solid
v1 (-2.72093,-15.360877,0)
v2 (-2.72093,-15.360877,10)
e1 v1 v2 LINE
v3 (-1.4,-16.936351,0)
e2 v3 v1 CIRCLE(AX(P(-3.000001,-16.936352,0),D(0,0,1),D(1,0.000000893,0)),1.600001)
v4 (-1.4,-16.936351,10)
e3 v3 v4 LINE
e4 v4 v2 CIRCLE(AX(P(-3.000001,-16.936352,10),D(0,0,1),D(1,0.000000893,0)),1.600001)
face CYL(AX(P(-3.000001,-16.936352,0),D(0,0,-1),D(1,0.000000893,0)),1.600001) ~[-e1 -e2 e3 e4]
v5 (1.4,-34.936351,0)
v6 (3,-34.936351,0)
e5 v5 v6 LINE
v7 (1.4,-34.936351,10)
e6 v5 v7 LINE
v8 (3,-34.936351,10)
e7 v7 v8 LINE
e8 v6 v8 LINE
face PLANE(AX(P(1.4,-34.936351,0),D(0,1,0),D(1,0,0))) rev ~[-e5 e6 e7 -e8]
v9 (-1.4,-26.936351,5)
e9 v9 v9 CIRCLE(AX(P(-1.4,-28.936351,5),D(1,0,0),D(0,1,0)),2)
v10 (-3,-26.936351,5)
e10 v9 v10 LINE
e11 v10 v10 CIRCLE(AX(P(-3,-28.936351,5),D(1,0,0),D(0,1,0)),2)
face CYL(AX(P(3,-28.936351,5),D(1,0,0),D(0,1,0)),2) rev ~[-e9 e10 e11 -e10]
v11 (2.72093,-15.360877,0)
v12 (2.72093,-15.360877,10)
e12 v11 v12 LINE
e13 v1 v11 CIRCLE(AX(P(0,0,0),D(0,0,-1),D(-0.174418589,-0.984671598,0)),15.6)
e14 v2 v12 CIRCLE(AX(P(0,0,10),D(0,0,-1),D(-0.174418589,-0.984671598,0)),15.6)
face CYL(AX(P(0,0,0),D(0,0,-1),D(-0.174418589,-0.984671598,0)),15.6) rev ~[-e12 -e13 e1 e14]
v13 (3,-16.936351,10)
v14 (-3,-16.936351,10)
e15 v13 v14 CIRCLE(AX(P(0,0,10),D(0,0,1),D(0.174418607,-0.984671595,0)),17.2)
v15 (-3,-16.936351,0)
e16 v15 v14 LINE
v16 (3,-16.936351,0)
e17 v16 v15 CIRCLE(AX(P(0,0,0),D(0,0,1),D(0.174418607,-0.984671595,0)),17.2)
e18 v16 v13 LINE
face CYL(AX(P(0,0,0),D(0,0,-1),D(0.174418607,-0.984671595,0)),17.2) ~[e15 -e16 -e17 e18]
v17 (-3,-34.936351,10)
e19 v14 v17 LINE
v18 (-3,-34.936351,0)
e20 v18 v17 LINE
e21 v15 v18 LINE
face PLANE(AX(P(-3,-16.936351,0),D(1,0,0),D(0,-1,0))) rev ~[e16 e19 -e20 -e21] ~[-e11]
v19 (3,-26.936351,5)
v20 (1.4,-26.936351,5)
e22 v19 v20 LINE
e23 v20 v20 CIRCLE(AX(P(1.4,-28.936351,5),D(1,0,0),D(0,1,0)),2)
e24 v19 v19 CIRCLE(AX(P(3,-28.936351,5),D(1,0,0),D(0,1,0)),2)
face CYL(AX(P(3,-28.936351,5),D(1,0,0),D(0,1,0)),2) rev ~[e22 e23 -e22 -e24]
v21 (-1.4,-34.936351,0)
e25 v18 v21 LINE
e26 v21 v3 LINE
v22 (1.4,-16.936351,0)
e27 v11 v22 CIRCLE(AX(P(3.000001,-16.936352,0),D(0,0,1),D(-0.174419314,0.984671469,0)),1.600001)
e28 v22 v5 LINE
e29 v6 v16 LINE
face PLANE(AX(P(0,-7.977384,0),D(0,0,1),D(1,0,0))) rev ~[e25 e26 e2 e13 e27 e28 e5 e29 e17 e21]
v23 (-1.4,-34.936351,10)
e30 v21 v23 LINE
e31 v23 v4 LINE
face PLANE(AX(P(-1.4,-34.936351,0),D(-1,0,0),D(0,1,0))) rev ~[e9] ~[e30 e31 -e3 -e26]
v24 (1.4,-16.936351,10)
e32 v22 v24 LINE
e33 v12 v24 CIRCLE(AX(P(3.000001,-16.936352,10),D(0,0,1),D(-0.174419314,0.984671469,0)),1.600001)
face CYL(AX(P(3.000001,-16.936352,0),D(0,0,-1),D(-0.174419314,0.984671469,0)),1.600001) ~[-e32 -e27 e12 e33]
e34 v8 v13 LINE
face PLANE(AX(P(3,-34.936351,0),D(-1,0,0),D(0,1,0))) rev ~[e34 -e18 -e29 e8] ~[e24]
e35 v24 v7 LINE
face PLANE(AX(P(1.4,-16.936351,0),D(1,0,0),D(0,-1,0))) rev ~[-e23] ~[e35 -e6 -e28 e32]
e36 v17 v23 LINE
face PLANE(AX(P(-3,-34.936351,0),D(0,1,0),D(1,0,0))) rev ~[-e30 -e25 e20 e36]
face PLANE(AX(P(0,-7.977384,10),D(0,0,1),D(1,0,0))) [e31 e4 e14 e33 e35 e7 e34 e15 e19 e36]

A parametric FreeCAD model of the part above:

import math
import FreeCAD as App
import Part
import Sketcher
from FreeCAD import Vector

doc = App.newDocument("Part")
params = doc.addObject("Spreadsheet::Sheet", "Params")
for row, (alias, value) in enumerate([
    ("sketch1_radius", "15.6 mm"),
    ("sketch1_radius2", "1.600001 mm"),
    ("sketch1_height", "18 mm"),
    ("pad1_length", "10 mm"),
    ("sketch2_diameter", "4 mm"),
    ("pocket1_length", "30 mm"),
], start=1):
    params.set(f"A{row}", alias)
    params.set(f"B{row}", "=" + value)
    params.setAlias(f"B{row}", alias)

body = doc.addObject("PartDesign::Body", "Body")

sketch1 = doc.addObject("Sketcher::SketchObject", "Sketch")
body.addObject(sketch1)
sketch1.AttachmentSupport = (doc.XY_Plane, [""])
sketch1.MapMode = "FlatFace"
sketch1.addGeometry([
    Part.ArcOfCircle(Part.Circle(Vector(0, 0, 0), Vector(0, 0, 1), 15.6), math.radians(-80), math.radians(260)),
    Part.ArcOfCircle(Part.Circle(Vector(3, -16.9, 0), Vector(0, 0, 1), 1.6), math.radians(100), math.radians(180)),
    Part.LineSegment(Vector(1.4, -16.9, 0), Vector(1.4, -34.9, 0)),
    Part.LineSegment(Vector(1.4, -34.9, 0), Vector(3, -34.9, 0)),
    Part.LineSegment(Vector(3, -34.9, 0), Vector(3, -16.9, 0)),
    Part.ArcOfCircle(Part.Circle(Vector(0, 0, 0), Vector(0, 0, 1), 17.2), math.radians(-80), math.radians(260)),
    Part.LineSegment(Vector(-3, -16.9, 0), Vector(-3, -34.9, 0)),
    Part.LineSegment(Vector(-3, -34.9, 0), Vector(-1.4, -34.9, 0)),
    Part.LineSegment(Vector(-1.4, -34.9, 0), Vector(-1.4, -16.9, 0)),
    Part.ArcOfCircle(Part.Circle(Vector(-3, -16.9, 0), Vector(0, 0, 1), 1.6), math.radians(0), math.radians(80)),
], False)
sketch1.addConstraint([
    Sketcher.Constraint("Tangent", 0, 1, 1, 1),
    Sketcher.Constraint("Tangent", 1, 2, 2, 1),
    Sketcher.Constraint("Coincident", 2, 2, 3, 1),
    Sketcher.Constraint("Coincident", 3, 2, 4, 1),
    Sketcher.Constraint("Coincident", 4, 2, 5, 1),
    Sketcher.Constraint("Coincident", 5, 2, 6, 1),
    Sketcher.Constraint("Coincident", 6, 2, 7, 1),
    Sketcher.Constraint("Coincident", 7, 2, 8, 1),
    Sketcher.Constraint("Tangent", 8, 2, 9, 1),
    Sketcher.Constraint("Tangent", 9, 2, 0, 2),
    Sketcher.Constraint("Vertical", 2),
    Sketcher.Constraint("Horizontal", 3),
    Sketcher.Constraint("Vertical", 4),
    Sketcher.Constraint("Vertical", 6),
    Sketcher.Constraint("Horizontal", 7),
    Sketcher.Constraint("Vertical", 8),
    Sketcher.Constraint("Coincident", 0, 3, -1, 1),
    Sketcher.Constraint("Coincident", 5, 3, -1, 1),
    Sketcher.Constraint("Coincident", 4, 2, 1, 3),
    Sketcher.Constraint("Coincident", 5, 2, 9, 3),
    Sketcher.Constraint("Symmetric", 3, 2, 6, 2, -2),
    Sketcher.Constraint("Radius", 0, 15.6),
    Sketcher.Constraint("Radius", 1, 1.600001),
    Sketcher.Constraint("DistanceY", 2, 2, 2, 1, 18.0),
    Sketcher.Constraint("DistanceX", -1, 1, 1, 3, 3.000001),
])
sketch1.setExpression("Constraints[21]", "Params.sketch1_radius")
sketch1.setExpression("Constraints[22]", "Params.sketch1_radius2")
sketch1.setExpression("Constraints[23]", "Params.sketch1_height")
pad1 = doc.addObject("PartDesign::Pad", "Pad")
body.addObject(pad1)
pad1.Profile = sketch1
pad1.setExpression("Length", "Params.pad1_length")

sketch2 = doc.addObject("Sketcher::SketchObject", "Sketch001")
body.addObject(sketch2)
sketch2.AttachmentSupport = (doc.YZ_Plane, [""])
sketch2.MapMode = "FlatFace"
sketch2.AttachmentOffset = App.Placement(Vector(0, 0, 3), App.Rotation())
sketch2.addGeometry(Part.Circle(Vector(-28.9, 5, 0), Vector(0, 0, 1), 2), False)
sketch2.addConstraint([
    Sketcher.Constraint("Diameter", 0, 4.0),
    Sketcher.Constraint("DistanceY", -1, 1, 0, 3, 5.0),
    Sketcher.Constraint("DistanceX", 0, 3, -1, 1, 28.936351),
])
sketch2.setExpression("Constraints[0]", "Params.sketch2_diameter")
pocket1 = doc.addObject("PartDesign::Pocket", "Pocket")
body.addObject(pocket1)
pocket1.Profile = sketch2
pocket1.setExpression("Length", "Params.pocket1_length")

doc.recompute()
